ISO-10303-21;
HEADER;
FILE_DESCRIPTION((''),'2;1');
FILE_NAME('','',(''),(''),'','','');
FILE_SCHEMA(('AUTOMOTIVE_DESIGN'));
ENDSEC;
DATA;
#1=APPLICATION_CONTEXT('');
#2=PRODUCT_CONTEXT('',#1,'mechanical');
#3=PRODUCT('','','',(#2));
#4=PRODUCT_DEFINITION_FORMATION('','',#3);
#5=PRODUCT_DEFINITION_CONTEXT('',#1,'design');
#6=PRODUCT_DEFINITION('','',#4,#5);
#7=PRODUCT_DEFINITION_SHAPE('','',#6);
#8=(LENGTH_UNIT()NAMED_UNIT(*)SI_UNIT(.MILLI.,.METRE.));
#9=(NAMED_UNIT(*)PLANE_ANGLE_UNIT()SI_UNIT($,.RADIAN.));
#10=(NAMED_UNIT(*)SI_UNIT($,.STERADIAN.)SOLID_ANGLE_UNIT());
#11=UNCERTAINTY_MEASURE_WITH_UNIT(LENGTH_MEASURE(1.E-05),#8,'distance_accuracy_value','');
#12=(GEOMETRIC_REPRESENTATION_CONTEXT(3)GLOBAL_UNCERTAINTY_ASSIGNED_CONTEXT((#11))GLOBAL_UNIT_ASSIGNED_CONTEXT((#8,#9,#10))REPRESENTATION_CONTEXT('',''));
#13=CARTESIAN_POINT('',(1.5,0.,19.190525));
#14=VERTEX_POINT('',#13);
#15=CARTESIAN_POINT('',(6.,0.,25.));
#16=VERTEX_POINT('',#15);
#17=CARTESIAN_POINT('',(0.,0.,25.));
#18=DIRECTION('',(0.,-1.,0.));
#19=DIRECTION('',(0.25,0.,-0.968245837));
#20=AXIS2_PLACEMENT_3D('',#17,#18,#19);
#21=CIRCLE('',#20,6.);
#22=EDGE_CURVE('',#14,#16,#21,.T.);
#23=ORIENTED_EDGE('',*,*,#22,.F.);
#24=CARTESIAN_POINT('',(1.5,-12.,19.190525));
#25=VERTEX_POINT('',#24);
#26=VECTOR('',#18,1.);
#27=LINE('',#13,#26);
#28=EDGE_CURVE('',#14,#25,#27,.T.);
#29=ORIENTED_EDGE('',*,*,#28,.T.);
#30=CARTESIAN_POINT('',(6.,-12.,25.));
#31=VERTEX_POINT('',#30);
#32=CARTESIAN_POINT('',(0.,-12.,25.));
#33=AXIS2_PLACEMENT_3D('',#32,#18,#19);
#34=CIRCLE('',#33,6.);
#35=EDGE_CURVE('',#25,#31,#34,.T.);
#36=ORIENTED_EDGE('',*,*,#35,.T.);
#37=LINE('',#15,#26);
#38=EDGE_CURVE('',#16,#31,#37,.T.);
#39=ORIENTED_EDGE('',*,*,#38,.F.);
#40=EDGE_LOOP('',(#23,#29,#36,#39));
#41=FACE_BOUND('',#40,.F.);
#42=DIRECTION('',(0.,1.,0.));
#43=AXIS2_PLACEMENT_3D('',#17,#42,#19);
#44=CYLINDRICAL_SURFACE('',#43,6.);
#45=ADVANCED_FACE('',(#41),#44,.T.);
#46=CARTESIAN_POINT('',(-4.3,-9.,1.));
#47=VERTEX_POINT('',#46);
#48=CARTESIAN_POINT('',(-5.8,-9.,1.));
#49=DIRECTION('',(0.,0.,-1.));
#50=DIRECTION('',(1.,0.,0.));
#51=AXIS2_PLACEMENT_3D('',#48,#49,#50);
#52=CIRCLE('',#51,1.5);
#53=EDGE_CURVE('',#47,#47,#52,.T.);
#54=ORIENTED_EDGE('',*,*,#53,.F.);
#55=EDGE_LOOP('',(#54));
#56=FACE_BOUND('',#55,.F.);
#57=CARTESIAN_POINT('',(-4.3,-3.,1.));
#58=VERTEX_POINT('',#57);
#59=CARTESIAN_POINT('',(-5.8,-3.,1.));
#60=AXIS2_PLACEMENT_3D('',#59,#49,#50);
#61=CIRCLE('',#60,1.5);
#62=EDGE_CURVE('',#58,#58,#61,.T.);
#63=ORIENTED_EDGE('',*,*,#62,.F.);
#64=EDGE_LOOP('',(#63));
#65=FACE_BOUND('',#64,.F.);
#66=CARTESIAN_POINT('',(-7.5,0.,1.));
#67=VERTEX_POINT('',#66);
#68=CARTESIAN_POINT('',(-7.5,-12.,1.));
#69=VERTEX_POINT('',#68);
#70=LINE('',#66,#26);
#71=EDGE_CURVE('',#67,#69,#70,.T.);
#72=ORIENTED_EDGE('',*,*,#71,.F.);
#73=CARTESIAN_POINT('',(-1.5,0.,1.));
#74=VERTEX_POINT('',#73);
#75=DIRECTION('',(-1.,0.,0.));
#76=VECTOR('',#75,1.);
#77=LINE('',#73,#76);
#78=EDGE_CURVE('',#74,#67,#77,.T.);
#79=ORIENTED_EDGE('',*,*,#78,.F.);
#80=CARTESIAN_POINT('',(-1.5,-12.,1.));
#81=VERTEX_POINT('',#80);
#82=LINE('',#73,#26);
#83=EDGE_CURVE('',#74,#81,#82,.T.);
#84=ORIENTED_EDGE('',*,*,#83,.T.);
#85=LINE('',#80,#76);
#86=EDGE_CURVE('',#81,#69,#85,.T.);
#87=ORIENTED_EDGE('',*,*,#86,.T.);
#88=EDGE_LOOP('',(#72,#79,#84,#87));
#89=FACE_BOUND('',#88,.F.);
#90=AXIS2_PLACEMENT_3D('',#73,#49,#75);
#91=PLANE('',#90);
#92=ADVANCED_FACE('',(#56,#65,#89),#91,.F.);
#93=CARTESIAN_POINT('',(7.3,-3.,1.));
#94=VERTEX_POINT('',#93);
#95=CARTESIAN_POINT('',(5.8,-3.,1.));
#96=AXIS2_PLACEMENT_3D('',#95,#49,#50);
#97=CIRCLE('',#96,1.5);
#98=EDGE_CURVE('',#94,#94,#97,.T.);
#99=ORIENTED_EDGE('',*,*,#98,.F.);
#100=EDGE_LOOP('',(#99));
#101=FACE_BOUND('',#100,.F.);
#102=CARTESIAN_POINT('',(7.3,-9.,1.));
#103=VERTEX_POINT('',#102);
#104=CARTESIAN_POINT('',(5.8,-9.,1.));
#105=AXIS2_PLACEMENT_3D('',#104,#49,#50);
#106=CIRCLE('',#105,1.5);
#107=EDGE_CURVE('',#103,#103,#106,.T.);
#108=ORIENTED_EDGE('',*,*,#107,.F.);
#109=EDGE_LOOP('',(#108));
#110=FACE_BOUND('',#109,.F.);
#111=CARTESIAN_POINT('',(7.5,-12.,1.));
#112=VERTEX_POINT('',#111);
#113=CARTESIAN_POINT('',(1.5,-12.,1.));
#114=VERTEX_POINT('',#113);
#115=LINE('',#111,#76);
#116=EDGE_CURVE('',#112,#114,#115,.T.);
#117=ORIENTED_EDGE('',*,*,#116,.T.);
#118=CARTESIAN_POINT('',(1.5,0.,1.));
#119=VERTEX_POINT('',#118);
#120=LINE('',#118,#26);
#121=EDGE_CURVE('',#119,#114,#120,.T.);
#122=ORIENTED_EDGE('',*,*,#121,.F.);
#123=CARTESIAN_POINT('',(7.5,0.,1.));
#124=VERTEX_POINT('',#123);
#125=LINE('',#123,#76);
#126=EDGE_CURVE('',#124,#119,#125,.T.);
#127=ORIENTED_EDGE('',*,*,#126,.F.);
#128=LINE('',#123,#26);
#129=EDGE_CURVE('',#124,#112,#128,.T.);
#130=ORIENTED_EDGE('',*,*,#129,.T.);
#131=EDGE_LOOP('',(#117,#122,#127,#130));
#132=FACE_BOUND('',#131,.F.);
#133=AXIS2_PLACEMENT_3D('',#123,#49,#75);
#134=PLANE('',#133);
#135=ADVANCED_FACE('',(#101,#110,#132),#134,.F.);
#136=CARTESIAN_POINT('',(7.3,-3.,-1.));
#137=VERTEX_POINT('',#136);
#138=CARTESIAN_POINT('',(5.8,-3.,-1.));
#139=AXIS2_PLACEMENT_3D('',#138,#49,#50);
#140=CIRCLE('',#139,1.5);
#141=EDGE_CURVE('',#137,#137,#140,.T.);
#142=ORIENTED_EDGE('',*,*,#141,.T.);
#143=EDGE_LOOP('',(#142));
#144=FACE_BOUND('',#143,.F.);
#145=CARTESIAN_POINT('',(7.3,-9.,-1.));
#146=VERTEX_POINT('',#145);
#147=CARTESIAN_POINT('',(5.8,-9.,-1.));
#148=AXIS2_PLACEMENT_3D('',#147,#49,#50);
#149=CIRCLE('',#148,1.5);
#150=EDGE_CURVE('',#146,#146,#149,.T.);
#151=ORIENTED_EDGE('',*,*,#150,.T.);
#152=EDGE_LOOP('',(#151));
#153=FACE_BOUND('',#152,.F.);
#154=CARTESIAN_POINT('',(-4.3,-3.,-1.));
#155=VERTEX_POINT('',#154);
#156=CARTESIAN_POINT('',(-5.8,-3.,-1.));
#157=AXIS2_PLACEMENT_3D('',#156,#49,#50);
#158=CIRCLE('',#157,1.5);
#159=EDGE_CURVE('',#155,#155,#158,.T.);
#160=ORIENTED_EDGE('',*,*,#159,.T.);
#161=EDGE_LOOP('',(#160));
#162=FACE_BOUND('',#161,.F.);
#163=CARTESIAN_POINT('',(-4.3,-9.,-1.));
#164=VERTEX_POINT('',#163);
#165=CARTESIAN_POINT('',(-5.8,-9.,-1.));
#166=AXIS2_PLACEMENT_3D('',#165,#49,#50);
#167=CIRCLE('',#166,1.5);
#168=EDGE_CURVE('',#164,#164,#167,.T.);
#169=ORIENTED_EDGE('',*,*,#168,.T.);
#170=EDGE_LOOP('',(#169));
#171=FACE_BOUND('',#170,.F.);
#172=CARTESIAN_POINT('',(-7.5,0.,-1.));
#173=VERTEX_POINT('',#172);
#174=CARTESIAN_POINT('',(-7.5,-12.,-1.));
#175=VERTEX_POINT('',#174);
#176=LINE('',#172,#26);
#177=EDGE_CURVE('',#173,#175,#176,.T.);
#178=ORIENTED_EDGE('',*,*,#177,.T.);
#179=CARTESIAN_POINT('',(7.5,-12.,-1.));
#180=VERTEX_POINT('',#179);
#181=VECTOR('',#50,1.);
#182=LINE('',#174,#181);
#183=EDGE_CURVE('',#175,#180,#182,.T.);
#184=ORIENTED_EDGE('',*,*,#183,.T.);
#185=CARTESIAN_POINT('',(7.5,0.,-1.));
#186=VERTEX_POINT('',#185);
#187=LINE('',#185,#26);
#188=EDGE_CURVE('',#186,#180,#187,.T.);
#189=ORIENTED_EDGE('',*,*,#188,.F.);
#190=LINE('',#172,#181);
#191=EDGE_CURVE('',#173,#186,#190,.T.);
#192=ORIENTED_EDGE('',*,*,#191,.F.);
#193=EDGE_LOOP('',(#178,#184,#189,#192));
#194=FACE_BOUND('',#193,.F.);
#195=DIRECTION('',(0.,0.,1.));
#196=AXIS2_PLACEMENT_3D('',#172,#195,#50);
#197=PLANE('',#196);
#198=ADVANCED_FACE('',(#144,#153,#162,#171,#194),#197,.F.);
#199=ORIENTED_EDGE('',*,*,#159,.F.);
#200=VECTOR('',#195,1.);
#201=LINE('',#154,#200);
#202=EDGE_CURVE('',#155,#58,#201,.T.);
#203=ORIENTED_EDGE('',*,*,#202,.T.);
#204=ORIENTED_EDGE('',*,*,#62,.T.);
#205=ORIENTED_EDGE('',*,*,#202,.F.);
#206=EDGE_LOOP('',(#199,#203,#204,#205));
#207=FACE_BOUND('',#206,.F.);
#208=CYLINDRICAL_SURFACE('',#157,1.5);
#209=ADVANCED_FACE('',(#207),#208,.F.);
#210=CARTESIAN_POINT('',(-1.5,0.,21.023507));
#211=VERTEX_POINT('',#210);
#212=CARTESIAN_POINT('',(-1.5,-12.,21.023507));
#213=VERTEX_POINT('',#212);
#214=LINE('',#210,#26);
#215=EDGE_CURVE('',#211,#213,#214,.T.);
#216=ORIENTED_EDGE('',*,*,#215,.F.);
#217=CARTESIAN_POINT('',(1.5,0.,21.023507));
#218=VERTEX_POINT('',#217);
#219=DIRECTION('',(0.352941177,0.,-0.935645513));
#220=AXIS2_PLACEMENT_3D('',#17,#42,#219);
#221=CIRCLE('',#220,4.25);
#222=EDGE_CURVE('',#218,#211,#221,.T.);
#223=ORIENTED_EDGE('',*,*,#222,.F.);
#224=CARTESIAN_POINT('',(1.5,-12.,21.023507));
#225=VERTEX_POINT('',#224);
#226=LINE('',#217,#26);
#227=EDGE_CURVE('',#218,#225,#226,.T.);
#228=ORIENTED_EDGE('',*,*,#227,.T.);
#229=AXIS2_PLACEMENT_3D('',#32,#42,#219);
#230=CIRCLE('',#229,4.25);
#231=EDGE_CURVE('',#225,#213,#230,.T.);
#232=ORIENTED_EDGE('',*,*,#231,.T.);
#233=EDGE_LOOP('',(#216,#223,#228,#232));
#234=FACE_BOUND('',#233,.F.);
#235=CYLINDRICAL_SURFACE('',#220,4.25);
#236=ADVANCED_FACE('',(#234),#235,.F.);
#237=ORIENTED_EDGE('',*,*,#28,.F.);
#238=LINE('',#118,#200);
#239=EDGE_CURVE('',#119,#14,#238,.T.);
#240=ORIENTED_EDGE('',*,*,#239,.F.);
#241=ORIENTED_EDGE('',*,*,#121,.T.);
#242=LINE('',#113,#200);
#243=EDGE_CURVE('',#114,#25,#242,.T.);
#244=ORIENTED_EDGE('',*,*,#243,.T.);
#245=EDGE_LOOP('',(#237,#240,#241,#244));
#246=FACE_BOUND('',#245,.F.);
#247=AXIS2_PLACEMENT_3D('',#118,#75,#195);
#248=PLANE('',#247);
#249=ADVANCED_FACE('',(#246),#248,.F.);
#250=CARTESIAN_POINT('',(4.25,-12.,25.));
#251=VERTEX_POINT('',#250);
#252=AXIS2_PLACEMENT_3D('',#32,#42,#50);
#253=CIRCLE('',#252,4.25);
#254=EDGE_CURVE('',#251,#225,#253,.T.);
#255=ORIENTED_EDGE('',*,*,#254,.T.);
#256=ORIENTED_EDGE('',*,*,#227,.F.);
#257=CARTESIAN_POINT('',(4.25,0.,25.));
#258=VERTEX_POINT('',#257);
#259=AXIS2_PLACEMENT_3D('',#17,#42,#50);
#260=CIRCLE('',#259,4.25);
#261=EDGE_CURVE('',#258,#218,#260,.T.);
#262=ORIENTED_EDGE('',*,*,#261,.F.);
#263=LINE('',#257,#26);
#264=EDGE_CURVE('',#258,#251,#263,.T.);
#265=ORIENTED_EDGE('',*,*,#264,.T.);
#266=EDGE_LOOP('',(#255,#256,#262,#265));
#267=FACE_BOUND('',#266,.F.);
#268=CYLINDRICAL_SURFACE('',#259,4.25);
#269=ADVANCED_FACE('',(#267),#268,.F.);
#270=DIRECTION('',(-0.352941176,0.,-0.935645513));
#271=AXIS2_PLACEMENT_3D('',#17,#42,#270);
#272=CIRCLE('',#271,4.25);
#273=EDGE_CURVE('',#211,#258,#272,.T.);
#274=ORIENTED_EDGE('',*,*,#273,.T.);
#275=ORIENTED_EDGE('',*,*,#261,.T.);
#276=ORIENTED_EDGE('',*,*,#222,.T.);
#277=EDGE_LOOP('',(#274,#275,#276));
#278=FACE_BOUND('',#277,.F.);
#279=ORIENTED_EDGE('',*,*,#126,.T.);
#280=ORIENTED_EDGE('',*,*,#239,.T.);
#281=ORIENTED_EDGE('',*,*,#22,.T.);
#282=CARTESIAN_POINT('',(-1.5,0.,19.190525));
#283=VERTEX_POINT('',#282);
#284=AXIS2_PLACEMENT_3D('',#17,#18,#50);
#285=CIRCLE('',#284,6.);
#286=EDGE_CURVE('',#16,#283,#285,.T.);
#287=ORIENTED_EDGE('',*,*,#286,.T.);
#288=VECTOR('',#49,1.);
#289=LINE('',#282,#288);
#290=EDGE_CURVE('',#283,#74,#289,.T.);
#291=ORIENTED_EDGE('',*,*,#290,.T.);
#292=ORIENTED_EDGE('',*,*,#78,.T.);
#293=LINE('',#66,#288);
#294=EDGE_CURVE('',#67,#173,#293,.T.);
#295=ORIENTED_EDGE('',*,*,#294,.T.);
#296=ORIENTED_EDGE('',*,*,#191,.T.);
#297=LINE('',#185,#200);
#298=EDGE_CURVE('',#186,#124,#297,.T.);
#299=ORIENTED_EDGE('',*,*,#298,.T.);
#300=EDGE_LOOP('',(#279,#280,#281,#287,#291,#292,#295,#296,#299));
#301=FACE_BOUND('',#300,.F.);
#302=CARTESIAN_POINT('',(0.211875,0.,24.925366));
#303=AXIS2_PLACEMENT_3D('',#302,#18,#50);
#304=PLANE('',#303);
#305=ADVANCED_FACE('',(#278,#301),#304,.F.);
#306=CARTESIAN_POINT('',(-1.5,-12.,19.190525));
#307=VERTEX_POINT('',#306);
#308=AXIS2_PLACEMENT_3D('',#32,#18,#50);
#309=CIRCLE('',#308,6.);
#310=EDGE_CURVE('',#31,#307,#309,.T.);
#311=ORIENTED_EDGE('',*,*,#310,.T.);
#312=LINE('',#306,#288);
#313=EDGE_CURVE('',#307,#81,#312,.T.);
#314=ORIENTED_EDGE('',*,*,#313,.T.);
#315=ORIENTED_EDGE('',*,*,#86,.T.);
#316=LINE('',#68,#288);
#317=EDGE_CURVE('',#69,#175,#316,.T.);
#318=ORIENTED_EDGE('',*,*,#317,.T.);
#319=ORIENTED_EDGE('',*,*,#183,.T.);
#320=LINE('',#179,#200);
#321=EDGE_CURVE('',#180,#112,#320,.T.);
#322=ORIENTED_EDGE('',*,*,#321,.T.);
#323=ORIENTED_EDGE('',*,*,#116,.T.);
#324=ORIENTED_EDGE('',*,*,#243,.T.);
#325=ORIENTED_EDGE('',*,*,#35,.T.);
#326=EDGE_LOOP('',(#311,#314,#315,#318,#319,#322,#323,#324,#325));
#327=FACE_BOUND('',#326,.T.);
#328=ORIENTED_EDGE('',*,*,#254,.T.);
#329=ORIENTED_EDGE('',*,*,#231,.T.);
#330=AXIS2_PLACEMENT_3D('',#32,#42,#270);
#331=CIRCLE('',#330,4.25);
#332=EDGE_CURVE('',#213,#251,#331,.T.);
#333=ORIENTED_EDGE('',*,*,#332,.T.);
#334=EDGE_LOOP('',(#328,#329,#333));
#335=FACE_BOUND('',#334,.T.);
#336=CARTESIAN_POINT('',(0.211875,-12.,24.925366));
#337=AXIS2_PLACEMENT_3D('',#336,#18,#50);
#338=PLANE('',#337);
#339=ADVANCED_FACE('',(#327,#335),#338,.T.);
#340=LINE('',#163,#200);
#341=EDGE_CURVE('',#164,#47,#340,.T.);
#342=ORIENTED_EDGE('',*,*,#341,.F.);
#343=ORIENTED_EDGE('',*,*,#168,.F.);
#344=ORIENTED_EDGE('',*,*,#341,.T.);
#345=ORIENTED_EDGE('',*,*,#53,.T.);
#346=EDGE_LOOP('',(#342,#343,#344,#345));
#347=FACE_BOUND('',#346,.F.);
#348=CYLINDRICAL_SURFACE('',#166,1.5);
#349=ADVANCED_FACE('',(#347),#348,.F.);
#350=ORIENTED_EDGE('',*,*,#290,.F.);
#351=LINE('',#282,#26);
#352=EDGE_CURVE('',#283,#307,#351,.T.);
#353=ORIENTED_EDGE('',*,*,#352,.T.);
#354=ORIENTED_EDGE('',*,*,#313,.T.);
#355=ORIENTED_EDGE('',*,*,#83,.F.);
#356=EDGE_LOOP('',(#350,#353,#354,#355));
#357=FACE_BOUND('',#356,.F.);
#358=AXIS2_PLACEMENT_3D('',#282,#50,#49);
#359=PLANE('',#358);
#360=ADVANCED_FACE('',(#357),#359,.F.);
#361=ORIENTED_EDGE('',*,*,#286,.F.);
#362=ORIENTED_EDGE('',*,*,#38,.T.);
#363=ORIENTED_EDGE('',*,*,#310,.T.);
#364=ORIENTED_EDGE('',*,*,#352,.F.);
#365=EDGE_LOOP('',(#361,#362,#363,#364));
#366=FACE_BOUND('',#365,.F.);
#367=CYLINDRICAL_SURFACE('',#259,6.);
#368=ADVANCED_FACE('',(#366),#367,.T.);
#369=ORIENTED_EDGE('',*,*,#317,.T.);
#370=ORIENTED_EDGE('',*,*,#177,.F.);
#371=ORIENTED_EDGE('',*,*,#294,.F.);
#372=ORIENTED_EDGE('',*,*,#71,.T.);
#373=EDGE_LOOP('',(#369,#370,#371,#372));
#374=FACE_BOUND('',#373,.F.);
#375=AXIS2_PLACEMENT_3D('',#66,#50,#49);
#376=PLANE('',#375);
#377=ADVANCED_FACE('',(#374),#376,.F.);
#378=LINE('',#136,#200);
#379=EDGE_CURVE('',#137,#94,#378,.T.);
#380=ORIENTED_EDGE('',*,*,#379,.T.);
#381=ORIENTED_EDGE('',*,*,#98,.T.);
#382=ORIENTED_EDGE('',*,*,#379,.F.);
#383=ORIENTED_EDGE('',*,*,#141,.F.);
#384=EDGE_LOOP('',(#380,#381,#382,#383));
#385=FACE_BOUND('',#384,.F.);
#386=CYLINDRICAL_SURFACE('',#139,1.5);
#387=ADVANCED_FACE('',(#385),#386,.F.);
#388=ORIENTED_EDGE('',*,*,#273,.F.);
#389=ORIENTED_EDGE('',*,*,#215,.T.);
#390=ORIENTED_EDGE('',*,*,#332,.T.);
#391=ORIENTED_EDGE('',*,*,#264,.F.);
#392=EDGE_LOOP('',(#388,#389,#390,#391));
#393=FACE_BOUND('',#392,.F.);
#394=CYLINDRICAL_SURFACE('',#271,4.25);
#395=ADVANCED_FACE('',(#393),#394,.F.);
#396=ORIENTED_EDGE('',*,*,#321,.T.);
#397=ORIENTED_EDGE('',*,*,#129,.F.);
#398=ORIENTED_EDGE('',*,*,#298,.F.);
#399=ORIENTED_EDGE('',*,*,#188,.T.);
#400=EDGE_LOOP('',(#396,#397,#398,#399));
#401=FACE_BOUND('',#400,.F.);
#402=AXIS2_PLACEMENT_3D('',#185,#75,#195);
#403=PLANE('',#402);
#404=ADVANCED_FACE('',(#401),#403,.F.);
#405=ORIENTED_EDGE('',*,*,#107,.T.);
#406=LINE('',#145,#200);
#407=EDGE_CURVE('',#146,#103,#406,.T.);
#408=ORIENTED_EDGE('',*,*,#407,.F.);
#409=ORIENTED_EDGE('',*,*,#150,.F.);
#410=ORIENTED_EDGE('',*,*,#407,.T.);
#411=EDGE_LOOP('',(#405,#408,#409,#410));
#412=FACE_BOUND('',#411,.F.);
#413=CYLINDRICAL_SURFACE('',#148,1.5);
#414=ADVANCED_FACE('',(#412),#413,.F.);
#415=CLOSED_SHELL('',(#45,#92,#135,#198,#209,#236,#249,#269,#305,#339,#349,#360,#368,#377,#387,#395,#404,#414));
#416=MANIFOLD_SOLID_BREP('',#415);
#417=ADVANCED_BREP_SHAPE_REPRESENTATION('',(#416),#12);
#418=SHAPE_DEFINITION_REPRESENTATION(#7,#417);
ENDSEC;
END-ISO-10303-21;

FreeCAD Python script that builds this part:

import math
import FreeCAD as App
import Part
import Sketcher

V = App.Vector
Q = App.Units.Quantity

doc = App.newDocument("Part")
body = doc.addObject("PartDesign::Body", "Body")

# Sketch on XZ plane
sketch1 = body.newObject("Sketcher::SketchObject", "Sketch")
sketch1.AttachmentSupport = (doc.getObject("XZ_Plane"), [""])
sketch1.MapMode = "FlatFace"
sketch1.addGeometry(Part.ArcOfCircle(Part.Circle(V(0, 25, 0), V(0, 0, 1), 6), math.radians(-76), math.radians(0)), False)
sketch1.addGeometry(Part.ArcOfCircle(Part.Circle(V(0, 25, 0), V(0, 0, 1), 6), math.radians(0), math.radians(256)), False)
sketch1.addGeometry(Part.LineSegment(V(-1.5, 19.2, 0), V(-1.5, 1, 0)), False)
sketch1.addGeometry(Part.LineSegment(V(-1.5, 1, 0), V(-7.5, 1, 0)), False)
sketch1.addGeometry(Part.LineSegment(V(-7.5, 1, 0), V(-7.5, -1, 0)), False)
sketch1.addGeometry(Part.LineSegment(V(-7.5, -1, 0), V(7.5, -1, 0)), False)
sketch1.addGeometry(Part.LineSegment(V(7.5, -1, 0), V(7.5, 1, 0)), False)
sketch1.addGeometry(Part.LineSegment(V(7.5, 1, 0), V(1.5, 1, 0)), False)
sketch1.addGeometry(Part.LineSegment(V(1.5, 1, 0), V(1.5, 19.2, 0)), False)
sketch1.addGeometry(Part.ArcOfCircle(Part.Circle(V(0, 25, 0), V(0, 0, 1), 4.2), math.radians(0), math.radians(249)), False)
sketch1.addGeometry(Part.ArcOfCircle(Part.Circle(V(0, 25, 0), V(0, 0, 1), 4.2), math.radians(-69), math.radians(0)), False)
sketch1.addGeometry(Part.ArcOfCircle(Part.Circle(V(0, 25, 0), V(0, 0, 1), 4.2), math.radians(-111), math.radians(-69)), False)
sketch1.addConstraint(Sketcher.Constraint("Tangent", 0, 2, 1, 1))
sketch1.addConstraint(Sketcher.Constraint("Coincident", 1, 2, 2, 1))
sketch1.addConstraint(Sketcher.Constraint("Coincident", 2, 2, 3, 1))
sketch1.addConstraint(Sketcher.Constraint("Coincident", 3, 2, 4, 1))
sketch1.addConstraint(Sketcher.Constraint("Coincident", 4, 2, 5, 1))
sketch1.addConstraint(Sketcher.Constraint("Coincident", 5, 2, 6, 1))
sketch1.addConstraint(Sketcher.Constraint("Coincident", 6, 2, 7, 1))
sketch1.addConstraint(Sketcher.Constraint("Coincident", 7, 2, 8, 1))
sketch1.addConstraint(Sketcher.Constraint("Coincident", 8, 2, 0, 1))
sketch1.addConstraint(Sketcher.Constraint("Tangent", 9, 1, 10, 2))
sketch1.addConstraint(Sketcher.Constraint("Tangent", 10, 1, 11, 2))
sketch1.addConstraint(Sketcher.Constraint("Tangent", 11, 1, 9, 2))
sketch1.addConstraint(Sketcher.Constraint("Vertical", 2))
sketch1.addConstraint(Sketcher.Constraint("Horizontal", 3))
sketch1.addConstraint(Sketcher.Constraint("Vertical", 4))
sketch1.addConstraint(Sketcher.Constraint("Horizontal", 5))
sketch1.addConstraint(Sketcher.Constraint("Vertical", 6))
sketch1.addConstraint(Sketcher.Constraint("Horizontal", 7))
sketch1.addConstraint(Sketcher.Constraint("Vertical", 8))
sketch1.addConstraint(Sketcher.Constraint("Coincident", 9, 3, 0, 3))
sketch1.addConstraint(Sketcher.Constraint("Equal", 0, 1))
sketch1.addConstraint(Sketcher.Constraint("Symmetric", 3, 2, 5, 2, -1, 1))
sketch1.addConstraint(Sketcher.Constraint("Symmetric", 2, 2, 7, 2, -2))
sketch1.addConstraint(Sketcher.Constraint("Symmetric", 10, 1, 11, 1, -2))
sketch1.addConstraint(Sketcher.Constraint("Horizontal", 11, 3, 0, 2))
sketch1.addConstraint(Sketcher.Constraint("Horizontal", 0, 2, 9, 1))
sketch1.addConstraint(Sketcher.Constraint("Vertical", 8, 2, 10, 1))
sketch1.addConstraint(Sketcher.Constraint("Radius", 0, Q("6 mm")))
sketch1.addConstraint(Sketcher.Constraint("DistanceX", 3, 2, 3, 1, Q("6 mm")))
sketch1.addConstraint(Sketcher.Constraint("DistanceX", 5, 1, 5, 2, Q("15 mm")))
sketch1.addConstraint(Sketcher.Constraint("DistanceY", 4, 2, 4, 1, Q("2 mm")))
sketch1.addConstraint(Sketcher.Constraint("Radius", 9, Q("4.25 mm")))
sketch1.addConstraint(Sketcher.Constraint("DistanceY", -1, 1, 0, 3, Q("25 mm")))
pad1 = body.newObject("PartDesign::Pad", "Pad")
pad1.Profile = sketch1
pad1.Length = 12

# Sketch on XY plane
sketch2 = body.newObject("Sketcher::SketchObject", "Sketch001")
sketch2.AttachmentSupport = (doc.getObject("XY_Plane"), [""])
sketch2.MapMode = "FlatFace"
sketch2.AttachmentOffset = App.Placement(V(0, 0, -1), App.Rotation())
sketch2.addGeometry(Part.Circle(V(-5.8, -9, 0), V(0, 0, 1), 1.5), False)
sketch2.addGeometry(Part.Circle(V(-5.8, -3, 0), V(0, 0, 1), 1.5), False)
sketch2.addGeometry(Part.Circle(V(5.8, -3, 0), V(0, 0, 1), 1.5), False)
sketch2.addGeometry(Part.Circle(V(5.8, -9, 0), V(0, 0, 1), 1.5), False)
sketch2.addConstraint(Sketcher.Constraint("Equal", 0, 1))
sketch2.addConstraint(Sketcher.Constraint("Equal", 1, 2))
sketch2.addConstraint(Sketcher.Constraint("Equal", 2, 3))
sketch2.addConstraint(Sketcher.Constraint("Symmetric", 1, 3, 2, 3, -2))
sketch2.addConstraint(Sketcher.Constraint("Symmetric", 0, 3, 3, 3, -2))
sketch2.addConstraint(Sketcher.Constraint("Vertical", 0, 3, 1, 3))
sketch2.addConstraint(Sketcher.Constraint("Diameter", 0, Q("3 mm")))
sketch2.addConstraint(Sketcher.Constraint("DistanceY", 0, 3, -1, 1, Q("9 mm")))
sketch2.addConstraint(Sketcher.Constraint("DistanceY", 1, 3, -1, 1, Q("3 mm")))
sketch2.addConstraint(Sketcher.Constraint("DistanceX", 0, 3, -1, 1, Q("5.8 mm")))
pocket1 = body.newObject("PartDesign::Pocket", "Pocket")
pocket1.Profile = sketch2
pocket1.Length = 5
pocket1.Reversed = True

doc.recompute()
